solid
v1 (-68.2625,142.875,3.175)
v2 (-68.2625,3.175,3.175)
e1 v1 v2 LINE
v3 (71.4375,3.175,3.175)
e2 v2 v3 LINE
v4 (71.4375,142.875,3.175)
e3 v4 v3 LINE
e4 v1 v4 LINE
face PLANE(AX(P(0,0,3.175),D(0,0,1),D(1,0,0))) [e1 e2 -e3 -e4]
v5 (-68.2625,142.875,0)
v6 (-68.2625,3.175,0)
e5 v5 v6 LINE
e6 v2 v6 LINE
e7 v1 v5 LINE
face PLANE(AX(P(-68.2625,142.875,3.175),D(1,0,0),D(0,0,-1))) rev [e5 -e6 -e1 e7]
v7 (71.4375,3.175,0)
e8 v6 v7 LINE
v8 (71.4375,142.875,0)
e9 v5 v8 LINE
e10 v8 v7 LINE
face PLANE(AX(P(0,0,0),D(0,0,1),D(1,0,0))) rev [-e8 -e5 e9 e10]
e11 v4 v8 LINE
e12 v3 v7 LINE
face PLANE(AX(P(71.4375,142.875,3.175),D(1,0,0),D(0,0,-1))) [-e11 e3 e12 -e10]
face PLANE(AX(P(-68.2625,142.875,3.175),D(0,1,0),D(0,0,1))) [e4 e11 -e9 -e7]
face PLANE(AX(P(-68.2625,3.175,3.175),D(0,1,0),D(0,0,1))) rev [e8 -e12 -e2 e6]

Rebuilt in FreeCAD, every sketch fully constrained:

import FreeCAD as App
import Part
import Sketcher
Q = App.Units.Quantity

doc = App.newDocument("Part")
body = doc.addObject("PartDesign::Body", "Body")

# Sketch on XY plane
sketch1 = body.newObject("Sketcher::SketchObject", "Sketch")
sketch1.AttachmentSupport = (doc.getObject("XY_Plane"), [""])
sketch1.MapMode = "FlatFace"
sketch1.addGeometry([
    Part.LineSegment(App.Vector(-68, 143, 0), App.Vector(-68, 3, 0)),
    Part.LineSegment(App.Vector(-68, 3, 0), App.Vector(71, 3, 0)),
    Part.LineSegment(App.Vector(71, 3, 0), App.Vector(71, 143, 0)),
    Part.LineSegment(App.Vector(71, 143, 0), App.Vector(-68, 143, 0)),
], False)
sketch1.addConstraint([
    Sketcher.Constraint("Coincident", 0, 2, 1, 1),
    Sketcher.Constraint("Coincident", 1, 2, 2, 1),
    Sketcher.Constraint("Coincident", 2, 2, 3, 1),
    Sketcher.Constraint("Coincident", 3, 2, 0, 1),
    Sketcher.Constraint("Vertical", 0),
    Sketcher.Constraint("Horizontal", 1),
    Sketcher.Constraint("Vertical", 2),
    Sketcher.Constraint("Horizontal", 3),
    Sketcher.Constraint("Equal", 3, 0),
    Sketcher.Constraint("DistanceX", 1, 1, 1, 2, Q("5.5 in")),
    Sketcher.Constraint("DistanceX", 0, 2, -1, 1, Q("2.6875 in")),
    Sketcher.Constraint("DistanceY", -1, 1, 0, 2, Q("0.125 in")),
])
pad1 = body.newObject("PartDesign::Pad", "Pad")
pad1.Profile = sketch1
pad1.Length = Q("0.125 in")

doc.recompute()
